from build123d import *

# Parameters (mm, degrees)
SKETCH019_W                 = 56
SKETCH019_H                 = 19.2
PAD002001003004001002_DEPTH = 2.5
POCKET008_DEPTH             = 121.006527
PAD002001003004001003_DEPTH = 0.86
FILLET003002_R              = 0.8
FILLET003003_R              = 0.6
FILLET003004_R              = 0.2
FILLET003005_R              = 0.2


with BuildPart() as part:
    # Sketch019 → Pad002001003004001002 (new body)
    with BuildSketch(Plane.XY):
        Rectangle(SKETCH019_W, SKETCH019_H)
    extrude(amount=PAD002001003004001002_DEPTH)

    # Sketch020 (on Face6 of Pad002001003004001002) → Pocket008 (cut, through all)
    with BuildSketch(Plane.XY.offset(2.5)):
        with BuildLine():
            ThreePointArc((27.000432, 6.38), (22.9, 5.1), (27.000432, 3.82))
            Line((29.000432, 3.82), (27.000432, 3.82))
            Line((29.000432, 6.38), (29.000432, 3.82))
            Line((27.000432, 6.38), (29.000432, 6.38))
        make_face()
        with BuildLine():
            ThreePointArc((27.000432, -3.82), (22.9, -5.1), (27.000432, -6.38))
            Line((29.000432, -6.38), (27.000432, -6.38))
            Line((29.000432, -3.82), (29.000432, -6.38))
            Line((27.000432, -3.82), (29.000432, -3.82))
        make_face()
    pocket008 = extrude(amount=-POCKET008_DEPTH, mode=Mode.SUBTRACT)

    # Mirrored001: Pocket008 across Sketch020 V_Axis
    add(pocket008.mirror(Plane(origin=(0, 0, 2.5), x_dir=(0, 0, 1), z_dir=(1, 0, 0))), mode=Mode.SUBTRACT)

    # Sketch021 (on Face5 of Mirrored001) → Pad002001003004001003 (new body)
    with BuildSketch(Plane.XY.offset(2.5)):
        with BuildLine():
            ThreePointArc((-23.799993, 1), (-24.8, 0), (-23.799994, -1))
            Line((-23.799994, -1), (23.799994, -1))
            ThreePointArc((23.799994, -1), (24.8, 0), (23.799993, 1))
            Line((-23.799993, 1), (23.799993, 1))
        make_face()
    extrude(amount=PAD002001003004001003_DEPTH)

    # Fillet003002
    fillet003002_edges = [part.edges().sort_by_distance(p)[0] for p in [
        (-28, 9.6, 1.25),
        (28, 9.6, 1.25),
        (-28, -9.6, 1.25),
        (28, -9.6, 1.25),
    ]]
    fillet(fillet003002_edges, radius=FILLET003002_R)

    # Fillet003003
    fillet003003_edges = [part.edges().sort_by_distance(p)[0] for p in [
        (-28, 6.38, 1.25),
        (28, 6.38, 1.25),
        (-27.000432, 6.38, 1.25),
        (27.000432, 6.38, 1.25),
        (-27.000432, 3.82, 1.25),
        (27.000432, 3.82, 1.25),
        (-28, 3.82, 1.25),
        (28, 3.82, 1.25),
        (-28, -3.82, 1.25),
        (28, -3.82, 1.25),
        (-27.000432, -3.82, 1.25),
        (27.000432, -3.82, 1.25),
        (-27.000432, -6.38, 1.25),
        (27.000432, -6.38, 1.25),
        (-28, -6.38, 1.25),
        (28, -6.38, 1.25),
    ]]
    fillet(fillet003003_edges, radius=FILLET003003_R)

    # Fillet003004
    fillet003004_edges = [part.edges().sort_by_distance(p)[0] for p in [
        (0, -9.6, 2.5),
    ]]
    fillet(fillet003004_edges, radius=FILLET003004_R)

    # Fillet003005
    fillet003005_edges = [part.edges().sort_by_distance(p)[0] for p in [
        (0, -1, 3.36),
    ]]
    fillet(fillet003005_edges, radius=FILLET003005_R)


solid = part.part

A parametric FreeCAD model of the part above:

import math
import FreeCAD as App
import Part
import Sketcher


def edges_at(feature, points):
    """Names of the edges that pass closest to the given points."""
    edges = feature.Shape.Edges
    near = lambda p: min(range(len(edges)), key=lambda i: edges[i].distToShape(Part.Vertex(*p))[0])
    return sorted({f"Edge{near(p) + 1}" for p in points})


def add_polygon(sketch, points):
    """Adds a closed chain of lines whose ends are joined by coincident constraints."""
    first, n = sketch.GeometryCount, len(points)
    for a, b in zip(points, points[1:] + points[:1]):
        sketch.addGeometry(Part.LineSegment(App.Vector(*a, 0), App.Vector(*b, 0)), False)
    for i in range(n):
        sketch.addConstraint(Sketcher.Constraint("Coincident", first + i, 2, first + (i + 1) % n, 1))

doc = App.newDocument("Part")
body = doc.addObject("PartDesign::Body", "Body")

sketch1 = body.newObject("Sketcher::SketchObject", "Sketch")
sketch1.AttachmentSupport = (doc.getObject("XY_Plane"), [""])
sketch1.MapMode = "FlatFace"
add_polygon(sketch1, [(-28, 9.6), (-28, -9.6), (28, -9.6), (28, 9.6)])
sketch1.addConstraint(Sketcher.Constraint("Vertical", 0))
sketch1.addConstraint(Sketcher.Constraint("Horizontal", 1))
sketch1.addConstraint(Sketcher.Constraint("Vertical", 2))
sketch1.addConstraint(Sketcher.Constraint("Horizontal", 3))
sketch1.addConstraint(Sketcher.Constraint("Symmetric", 0, 2, 2, 2, -1, 1))
sketch1.addConstraint(Sketcher.Constraint("DistanceX", 1, 1, 1, 2, 56.0))
sketch1.addConstraint(Sketcher.Constraint("DistanceY", 0, 2, 0, 1, 19.2))
pad1 = body.newObject("PartDesign::Pad", "Pad")
pad1.Profile = sketch1
pad1.Length = 2.5

sketch2 = body.newObject("Sketcher::SketchObject", "Sketch001")
sketch2.AttachmentSupport = (doc.getObject("XY_Plane"), [""])
sketch2.MapMode = "FlatFace"
sketch2.AttachmentOffset = App.Placement(App.Vector(0, 0, 2.5), App.Rotation())
sketch2.addGeometry(Part.ArcOfCircle(Part.Circle(App.Vector(25.15, 5.1, 0), App.Vector(0, 0, 1), 2.25), math.radians(34.672784), math.radians(325.327216)), False)
sketch2.addGeometry(Part.LineSegment(App.Vector(27.000432, 3.82, 0), App.Vector(29.000432, 3.82, 0)), False)
sketch2.addGeometry(Part.LineSegment(App.Vector(29.000432, 3.82, 0), App.Vector(29.000432, 6.38, 0)), False)
sketch2.addGeometry(Part.LineSegment(App.Vector(29.000432, 6.38, 0), App.Vector(27.000432, 6.38, 0)), False)
sketch2.addGeometry(Part.ArcOfCircle(Part.Circle(App.Vector(25.15, -5.1, 0), App.Vector(0, 0, 1), 2.25), math.radians(34.672784), math.radians(325.327216)), False)
sketch2.addGeometry(Part.LineSegment(App.Vector(27.000432, -6.38, 0), App.Vector(29.000432, -6.38, 0)), False)
sketch2.addGeometry(Part.LineSegment(App.Vector(29.000432, -6.38, 0), App.Vector(29.000432, -3.82, 0)), False)
sketch2.addGeometry(Part.LineSegment(App.Vector(29.000432, -3.82, 0), App.Vector(27.000432, -3.82, 0)), False)
sketch2.addConstraint(Sketcher.Constraint("Coincident", 0, 2, 1, 1))
sketch2.addConstraint(Sketcher.Constraint("Coincident", 1, 2, 2, 1))
sketch2.addConstraint(Sketcher.Constraint("Coincident", 2, 2, 3, 1))
sketch2.addConstraint(Sketcher.Constraint("Coincident", 3, 2, 0, 1))
sketch2.addConstraint(Sketcher.Constraint("Coincident", 4, 2, 5, 1))
sketch2.addConstraint(Sketcher.Constraint("Coincident", 5, 2, 6, 1))
sketch2.addConstraint(Sketcher.Constraint("Coincident", 6, 2, 7, 1))
sketch2.addConstraint(Sketcher.Constraint("Coincident", 7, 2, 4, 1))
sketch2.addConstraint(Sketcher.Constraint("Horizontal", 1))
sketch2.addConstraint(Sketcher.Constraint("Vertical", 2))
sketch2.addConstraint(Sketcher.Constraint("Horizontal", 3))
sketch2.addConstraint(Sketcher.Constraint("Horizontal", 5))
sketch2.addConstraint(Sketcher.Constraint("Vertical", 6))
sketch2.addConstraint(Sketcher.Constraint("Horizontal", 7))
sketch2.addConstraint(Sketcher.Constraint("Equal", 0, 4))
sketch2.addConstraint(Sketcher.Constraint("Symmetric", 0, 3, 4, 3, -1))
sketch2.addConstraint(Sketcher.Constraint("Symmetric", 2, 2, 5, 2, -1))
sketch2.addConstraint(Sketcher.Constraint("Vertical", 0, 2, 3, 2))
sketch2.addConstraint(Sketcher.Constraint("Vertical", 4, 2, 7, 2))
sketch2.addConstraint(Sketcher.Constraint("DistanceX", 1, 1, 1, 2, 2.0))
sketch2.addConstraint(Sketcher.Constraint("Radius", 0, 2.25))
sketch2.addConstraint(Sketcher.Constraint("DistanceY", 2, 1, 2, 2, 2.56))
sketch2.addConstraint(Sketcher.Constraint("DistanceY", -1, 1, 0, 3, 5.1))
sketch2.addConstraint(Sketcher.Constraint("DistanceX", -1, 1, 0, 3, 25.15))
pocket1 = body.newObject("PartDesign::Pocket", "Pocket")
pocket1.Profile = sketch2
pocket1.Type = "ThroughAll"
doc.recompute()

mirrored = body.newObject("PartDesign::Mirrored", "Mirrored")
mirrored.Originals = [pocket1]
mirrored.MirrorPlane = (doc.getObject("YZ_Plane"), [""])
body.Tip = mirrored

sketch3 = body.newObject("Sketcher::SketchObject", "Sketch002")
sketch3.AttachmentSupport = (doc.getObject("XY_Plane"), [""])
sketch3.MapMode = "FlatFace"
sketch3.AttachmentOffset = App.Placement(App.Vector(0, 0, 2.5), App.Rotation())
sketch3.addGeometry(Part.ArcOfCircle(Part.Circle(App.Vector(-23.8, 0, 0), App.Vector(0, 0, 1), 1), math.radians(89.999599), math.radians(270.000344)), False)
sketch3.addGeometry(Part.LineSegment(App.Vector(-23.799994, -1, 0), App.Vector(23.799994, -1, 0)), False)
sketch3.addGeometry(Part.ArcOfCircle(Part.Circle(App.Vector(23.8, 0, 0), App.Vector(0, 0, 1), 1), math.radians(-90.000344), math.radians(90.000401)), False)
sketch3.addGeometry(Part.LineSegment(App.Vector(23.799993, 1, 0), App.Vector(-23.799993, 1, 0)), False)
sketch3.addConstraint(Sketcher.Constraint("Coincident", 0, 2, 1, 1))
sketch3.addConstraint(Sketcher.Constraint("Coincident", 1, 2, 2, 1))
sketch3.addConstraint(Sketcher.Constraint("Coincident", 2, 2, 3, 1))
sketch3.addConstraint(Sketcher.Constraint("Coincident", 3, 2, 0, 1))
sketch3.addConstraint(Sketcher.Constraint("Horizontal", 1))
sketch3.addConstraint(Sketcher.Constraint("Horizontal", 3))
sketch3.addConstraint(Sketcher.Constraint("Symmetric", 0, 3, 2, 3, -1, 1))
sketch3.addConstraint(Sketcher.Constraint("Vertical", 1, 2, 2, 2))
sketch3.addConstraint(Sketcher.Constraint("Vertical", 0, 2, 3, 2))
sketch3.addConstraint(Sketcher.Constraint("Radius", 0, 1.0))
sketch3.addConstraint(Sketcher.Constraint("DistanceX", 0, 3, -1, 1, 23.8))
sketch3.addConstraint(Sketcher.Constraint("DistanceX", 1, 1, 1, 2, 47.599988))
sketch3.addConstraint(Sketcher.Constraint("DistanceX", 0, 2, -1, 1, 23.799994))
pad2 = body.newObject("PartDesign::Pad", "Pad001")
pad2.Profile = sketch3
pad2.Length = 0.86
doc.recompute()

fillet = body.newObject("PartDesign::Fillet", "Fillet")
fillet.Base = (pad2, edges_at(pad2, [
    (-28, 9.6, 1.25),
    (28, 9.6, 1.25),
    (-28, -9.6, 1.25),
    (28, -9.6, 1.25),
]))
fillet.Radius = 0.8
doc.recompute()

fillet2 = body.newObject("PartDesign::Fillet", "Fillet001")
fillet2.Base = (fillet, edges_at(fillet, [
    (-28, 6.38, 1.25),
    (28, 6.38, 1.25),
    (-27, 6.38, 1.25),
    (27, 6.38, 1.25),
    (-27, 3.82, 1.25),
    (27, 3.82, 1.25),
    (-28, 3.82, 1.25),
    (28, 3.82, 1.25),
    (-28, -3.82, 1.25),
    (28, -3.82, 1.25),
    (-27, -3.82, 1.25),
    (27, -3.82, 1.25),
    (-27, -6.38, 1.25),
    (27, -6.38, 1.25),
    (-28, -6.38, 1.25),
    (28, -6.38, 1.25),
]))
fillet2.Radius = 0.6
doc.recompute()

fillet3 = body.newObject("PartDesign::Fillet", "Fillet002")
fillet3.Base = (fillet2, edges_at(fillet2, [(0, -9.6, 2.5)]))
fillet3.Radius = 0.2
doc.recompute()

fillet4 = body.newObject("PartDesign::Fillet", "Fillet003")
fillet4.Base = (fillet3, edges_at(fillet3, [(0, -1, 3.36)]))
fillet4.Radius = 0.2

doc.recompute()
